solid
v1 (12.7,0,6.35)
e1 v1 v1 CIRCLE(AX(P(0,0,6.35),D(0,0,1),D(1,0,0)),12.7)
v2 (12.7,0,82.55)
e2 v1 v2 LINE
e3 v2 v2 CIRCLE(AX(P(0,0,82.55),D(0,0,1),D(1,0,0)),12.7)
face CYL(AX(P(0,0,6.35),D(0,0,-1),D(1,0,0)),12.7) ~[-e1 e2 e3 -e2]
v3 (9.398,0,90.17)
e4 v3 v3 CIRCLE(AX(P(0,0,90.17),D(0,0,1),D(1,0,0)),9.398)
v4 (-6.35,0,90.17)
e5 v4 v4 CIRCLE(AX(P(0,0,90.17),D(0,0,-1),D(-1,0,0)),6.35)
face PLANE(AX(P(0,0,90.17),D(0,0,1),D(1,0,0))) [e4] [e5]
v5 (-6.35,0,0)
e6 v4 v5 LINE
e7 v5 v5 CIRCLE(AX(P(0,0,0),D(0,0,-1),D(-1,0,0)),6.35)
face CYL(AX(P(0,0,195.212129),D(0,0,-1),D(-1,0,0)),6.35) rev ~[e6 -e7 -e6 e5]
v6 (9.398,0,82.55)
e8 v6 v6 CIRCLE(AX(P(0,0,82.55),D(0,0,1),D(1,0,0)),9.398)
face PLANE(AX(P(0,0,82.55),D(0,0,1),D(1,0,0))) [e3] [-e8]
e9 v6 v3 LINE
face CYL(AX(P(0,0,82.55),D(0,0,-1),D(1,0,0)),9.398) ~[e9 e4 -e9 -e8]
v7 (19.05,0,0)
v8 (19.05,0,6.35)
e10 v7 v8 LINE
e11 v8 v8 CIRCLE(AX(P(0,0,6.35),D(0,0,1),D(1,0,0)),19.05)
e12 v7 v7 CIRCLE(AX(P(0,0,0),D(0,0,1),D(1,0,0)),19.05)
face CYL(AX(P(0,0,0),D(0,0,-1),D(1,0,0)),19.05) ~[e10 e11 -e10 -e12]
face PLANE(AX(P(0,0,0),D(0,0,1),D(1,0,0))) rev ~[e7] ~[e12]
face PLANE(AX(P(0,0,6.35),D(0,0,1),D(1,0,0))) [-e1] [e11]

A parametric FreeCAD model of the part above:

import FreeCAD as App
import Part
import Sketcher
from FreeCAD import Vector
Q = App.Units.Quantity

doc = App.newDocument("Part")
body = doc.addObject("PartDesign::Body", "Body")

sketch1 = body.newObject("Sketcher::SketchObject", "Sketch")
sketch1.AttachmentSupport = (doc.getObject("XY_Plane"), [""])
sketch1.MapMode = "FlatFace"
sketch1.addGeometry(Part.Circle(Vector(0, 0, 0), Vector(0, 0, 1), 19), False)
sketch1.addConstraint([
    Sketcher.Constraint("Coincident", 0, 3, -1, 1),
    Sketcher.Constraint("Diameter", 0, Q("1.5 in")),
])
pad1 = body.newObject("PartDesign::Pad", "Pad")
pad1.Profile = sketch1
pad1.Length = Q("0.25 in")

sketch2 = body.newObject("Sketcher::SketchObject", "Sketch001")
sketch2.AttachmentSupport = (doc.getObject("XY_Plane"), [""])
sketch2.MapMode = "FlatFace"
sketch2.AttachmentOffset = App.Placement(Vector(0, 0, 0.25 * 25.4), App.Rotation())
sketch2.addGeometry(Part.Circle(Vector(0, 0, 0), Vector(0, 0, 1), 13), False)
sketch2.addConstraint([
    Sketcher.Constraint("Coincident", 0, 3, -1, 1),
    Sketcher.Constraint("Diameter", 0, Q("1 in")),
])
pad2 = body.newObject("PartDesign::Pad", "Pad001")
pad2.Profile = sketch2
pad2.Length = Q("3 in")

sketch3 = body.newObject("Sketcher::SketchObject", "Sketch002")
sketch3.AttachmentSupport = (doc.getObject("XY_Plane"), [""])
sketch3.MapMode = "FlatFace"
sketch3.AttachmentOffset = App.Placement(Vector(0, 0, 3.25 * 25.4), App.Rotation())
sketch3.addGeometry(Part.Circle(Vector(0, 0, 0), Vector(0, 0, 1), 9), False)
sketch3.addConstraint([
    Sketcher.Constraint("Coincident", 0, 3, -1, 1),
    Sketcher.Constraint("Diameter", 0, Q("0.74 in")),
])
pad3 = body.newObject("PartDesign::Pad", "Pad002")
pad3.Profile = sketch3
pad3.Length = Q("0.3 in")

sketch4 = body.newObject("Sketcher::SketchObject", "Sketch003")
sketch4.AttachmentSupport = (doc.getObject("XY_Plane"), [""])
sketch4.MapMode = "FlatFace"
sketch4.AttachmentOffset = App.Placement(Vector(0, 0, 3.55 * 25.4), App.Rotation())
sketch4.addGeometry(Part.Circle(Vector(0, 0, 0), Vector(0, 0, 1), 6), False)
sketch4.addConstraint([
    Sketcher.Constraint("Coincident", 0, 3, -1, 1),
    Sketcher.Constraint("Diameter", 0, Q("0.5 in")),
])
doc.recompute()
hole = body.newObject("PartDesign::Hole", "Hole")
hole.Profile = sketch4
hole.ThreadType = "None"
hole.Diameter = Q("0.5 in")
hole.DepthType = "ThroughAll"

doc.recompute()
